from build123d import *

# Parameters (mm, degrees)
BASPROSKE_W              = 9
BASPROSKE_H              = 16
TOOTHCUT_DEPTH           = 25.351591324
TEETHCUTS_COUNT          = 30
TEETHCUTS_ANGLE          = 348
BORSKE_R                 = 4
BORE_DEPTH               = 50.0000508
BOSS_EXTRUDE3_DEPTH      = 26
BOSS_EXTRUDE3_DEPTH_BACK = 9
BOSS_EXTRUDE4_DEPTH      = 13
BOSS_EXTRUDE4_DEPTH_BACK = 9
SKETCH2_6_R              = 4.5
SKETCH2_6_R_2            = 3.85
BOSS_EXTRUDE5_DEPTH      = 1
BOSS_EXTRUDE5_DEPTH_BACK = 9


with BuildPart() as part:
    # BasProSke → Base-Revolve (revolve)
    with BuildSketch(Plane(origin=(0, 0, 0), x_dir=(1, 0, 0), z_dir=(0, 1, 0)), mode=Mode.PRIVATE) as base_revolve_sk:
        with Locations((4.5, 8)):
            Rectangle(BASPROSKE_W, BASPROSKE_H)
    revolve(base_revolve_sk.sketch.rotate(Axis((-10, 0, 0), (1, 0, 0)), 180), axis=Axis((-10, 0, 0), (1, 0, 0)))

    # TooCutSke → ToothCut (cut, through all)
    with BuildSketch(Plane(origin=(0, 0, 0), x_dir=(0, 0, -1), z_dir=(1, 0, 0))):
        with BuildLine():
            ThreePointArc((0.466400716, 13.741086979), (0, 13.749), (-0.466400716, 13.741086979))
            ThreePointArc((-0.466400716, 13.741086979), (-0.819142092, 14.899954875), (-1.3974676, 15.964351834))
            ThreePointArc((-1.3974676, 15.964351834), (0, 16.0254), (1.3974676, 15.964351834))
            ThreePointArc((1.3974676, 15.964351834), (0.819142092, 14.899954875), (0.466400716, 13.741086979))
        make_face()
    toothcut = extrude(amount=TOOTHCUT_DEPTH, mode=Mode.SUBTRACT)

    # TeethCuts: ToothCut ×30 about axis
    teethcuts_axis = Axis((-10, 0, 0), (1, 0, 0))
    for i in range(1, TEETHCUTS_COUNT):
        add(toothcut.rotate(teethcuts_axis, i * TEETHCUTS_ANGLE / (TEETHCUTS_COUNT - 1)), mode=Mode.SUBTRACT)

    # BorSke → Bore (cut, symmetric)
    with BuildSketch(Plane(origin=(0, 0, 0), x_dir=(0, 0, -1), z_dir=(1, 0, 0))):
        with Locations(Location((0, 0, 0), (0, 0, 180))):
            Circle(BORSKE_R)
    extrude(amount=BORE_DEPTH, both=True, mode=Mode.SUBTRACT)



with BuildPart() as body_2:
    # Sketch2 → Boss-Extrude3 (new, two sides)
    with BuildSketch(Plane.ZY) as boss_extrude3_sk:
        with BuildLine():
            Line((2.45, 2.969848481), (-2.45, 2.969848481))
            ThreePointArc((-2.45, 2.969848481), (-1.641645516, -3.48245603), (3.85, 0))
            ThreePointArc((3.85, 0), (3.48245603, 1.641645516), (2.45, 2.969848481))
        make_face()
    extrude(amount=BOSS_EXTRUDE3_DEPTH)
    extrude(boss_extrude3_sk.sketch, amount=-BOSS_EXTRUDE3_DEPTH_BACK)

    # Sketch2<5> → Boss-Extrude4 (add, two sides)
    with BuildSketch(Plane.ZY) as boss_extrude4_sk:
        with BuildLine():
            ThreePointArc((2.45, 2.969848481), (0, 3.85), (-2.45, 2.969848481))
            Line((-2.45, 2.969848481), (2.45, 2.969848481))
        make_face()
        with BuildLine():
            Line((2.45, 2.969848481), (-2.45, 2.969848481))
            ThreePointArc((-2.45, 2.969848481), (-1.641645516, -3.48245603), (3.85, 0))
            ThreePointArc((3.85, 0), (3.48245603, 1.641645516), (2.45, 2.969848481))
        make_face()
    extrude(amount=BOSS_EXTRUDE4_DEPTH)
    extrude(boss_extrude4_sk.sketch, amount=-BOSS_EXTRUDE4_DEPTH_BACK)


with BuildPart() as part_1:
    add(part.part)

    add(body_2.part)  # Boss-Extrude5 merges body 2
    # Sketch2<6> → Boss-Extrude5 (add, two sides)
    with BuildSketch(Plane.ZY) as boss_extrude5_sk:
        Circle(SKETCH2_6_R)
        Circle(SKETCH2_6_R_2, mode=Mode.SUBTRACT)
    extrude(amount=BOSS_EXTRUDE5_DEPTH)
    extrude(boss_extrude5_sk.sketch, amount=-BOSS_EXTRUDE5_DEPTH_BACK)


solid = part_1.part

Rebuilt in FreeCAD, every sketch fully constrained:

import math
import FreeCAD as App
import Part
import Sketcher
from FreeCAD import Vector

doc = App.newDocument("Part")
body = doc.addObject("PartDesign::Body", "Body")

sketch1 = body.newObject("Sketcher::SketchObject", "Sketch")
sketch1.AttachmentSupport = (doc.getObject("XZ_Plane"), [""])
sketch1.MapMode = "FlatFace"
sketch1.addGeometry([
    Part.LineSegment(Vector(0, -16, 0), Vector(0, 0, 0)),
    Part.LineSegment(Vector(0, 0, 0), Vector(9, 0, 0)),
    Part.LineSegment(Vector(9, 0, 0), Vector(9, -16, 0)),
    Part.LineSegment(Vector(9, -16, 0), Vector(0, -16, 0)),
], False)
sketch1.addConstraint([
    Sketcher.Constraint("Coincident", 0, 2, 1, 1),
    Sketcher.Constraint("Coincident", 1, 2, 2, 1),
    Sketcher.Constraint("Coincident", 2, 2, 3, 1),
    Sketcher.Constraint("Coincident", 3, 2, 0, 1),
    Sketcher.Constraint("Vertical", 0),
    Sketcher.Constraint("Horizontal", 1),
    Sketcher.Constraint("Vertical", 2),
    Sketcher.Constraint("Horizontal", 3),
    Sketcher.Constraint("Coincident", 0, 2, -1, 1),
    Sketcher.Constraint("DistanceX", 1, 1, 1, 2, 9.0),
    Sketcher.Constraint("DistanceY", 0, 1, 0, 2, 16.0),
])
revolution = body.newObject("PartDesign::Revolution", "Revolution")
revolution.Profile = sketch1
revolution.ReferenceAxis = (sketch1, ["H_Axis"])
revolution.Angle = 360

sketch2 = body.newObject("Sketcher::SketchObject", "Sketch001")
sketch2.AttachmentSupport = (doc.getObject("YZ_Plane"), [""])
sketch2.MapMode = "FlatFace"
sketch2.addGeometry([
    Part.ArcOfCircle(Part.Circle(Vector(0, 0, 0), Vector(0, 0, 1), 13.7), math.radians(-1.94), math.radians(1.94)),
    Part.ArcOfCircle(Part.Circle(Vector(12.6, -6.4, 0), Vector(0, 0, 1), 6), math.radians(56), math.radians(79)),
    Part.ArcOfCircle(Part.Circle(Vector(0, 0, 0), Vector(0, 0, 1), 16), math.radians(-5), math.radians(5)),
    Part.ArcOfCircle(Part.Circle(Vector(12.6, 6.4, 0), Vector(0, 0, 1), 6), math.radians(-79), math.radians(-56)),
], False)
sketch2.addConstraint([
    Sketcher.Constraint("Coincident", 0, 1, 1, 2),
    Sketcher.Constraint("Coincident", 1, 1, 2, 1),
    Sketcher.Constraint("Coincident", 2, 2, 3, 2),
    Sketcher.Constraint("Coincident", 3, 1, 0, 2),
    Sketcher.Constraint("Coincident", 0, 3, -1, 1),
    Sketcher.Constraint("Coincident", 2, 3, -1, 1),
    Sketcher.Constraint("Equal", 1, 3),
    Sketcher.Constraint("Symmetric", 1, 3, 3, 3, -1),
    Sketcher.Constraint("Radius", 1, 6.0),
    Sketcher.Constraint("Radius", 0, 13.749),
    Sketcher.Constraint("Radius", 2, 16.0254),
    Sketcher.Constraint("DistanceY", 0, 1, -1, 1, 0.466401),
    Sketcher.Constraint("DistanceX", -1, 1, 1, 1, 15.964352),
])
pocket1 = body.newObject("PartDesign::Pocket", "Pocket")
pocket1.Profile = sketch2
pocket1.Type = "ThroughAll"
pocket1.Reversed = True
doc.recompute()

polarpattern = body.newObject("PartDesign::PolarPattern", "PolarPattern")
polarpattern.Originals = [pocket1]
polarpattern.Axis = (doc.getObject("X_Axis"), [""])
polarpattern.Angle = 360
polarpattern.Occurrences = 30
body.Tip = polarpattern

sketch3 = body.newObject("Sketcher::SketchObject", "Sketch002")
sketch3.AttachmentSupport = (doc.getObject("YZ_Plane"), [""])
sketch3.MapMode = "FlatFace"
sketch3.addGeometry(Part.Circle(Vector(0, 0, 0), Vector(0, 0, 1), 4), False)
sketch3.addConstraint([
    Sketcher.Constraint("Coincident", 0, 3, -1, 1),
    Sketcher.Constraint("Diameter", 0, 8.0),
])
pocket2 = body.newObject("PartDesign::Pocket", "Pocket001")
pocket2.Profile = sketch3
pocket2.Length = 100.000102
pocket2.Midplane = True
body2 = doc.addObject("PartDesign::Body", "Body001")

sketch4 = body2.newObject("Sketcher::SketchObject", "Sketch003")
sketch4.AttachmentSupport = (doc.getObject("YZ_Plane001"), [""])
sketch4.MapMode = "FlatFace"
sketch4.addGeometry([
    Part.LineSegment(Vector(3, 2.5, 0), Vector(3, -2.5, 0)),
    Part.ArcOfCircle(Part.Circle(Vector(0, 0, 0), Vector(0, 0, 1), 3.9), math.radians(90), math.radians(320)),
    Part.ArcOfCircle(Part.Circle(Vector(0, 0, 0), Vector(0, 0, 1), 3.8), math.radians(40), math.radians(90)),
], False)
sketch4.addConstraint([
    Sketcher.Constraint("Coincident", 0, 2, 1, 2),
    Sketcher.Constraint("Tangent", 1, 1, 2, 2),
    Sketcher.Constraint("Coincident", 2, 1, 0, 1),
    Sketcher.Constraint("Vertical", 0),
    Sketcher.Constraint("Coincident", 1, 3, -1, 1),
    Sketcher.Constraint("Equal", 1, 2),
    Sketcher.Constraint("PointOnObject", 1, 1, -2),
    Sketcher.Constraint("Radius", 1, 3.85),
    Sketcher.Constraint("DistanceY", 0, 2, 0, 1, 4.9),
])
pad1 = body2.newObject("PartDesign::Pad", "Pad")
pad1.Profile = sketch4
pad1.Type = "TwoLengths"
pad1.Length = 26
pad1.Length2 = 9
pad1.Reversed = True

sketch5 = body2.newObject("Sketcher::SketchObject", "Sketch004")
sketch5.AttachmentSupport = (doc.getObject("YZ_Plane001"), [""])
sketch5.MapMode = "FlatFace"
sketch5.addGeometry([
    Part.ArcOfCircle(Part.Circle(Vector(0, 0, 0), Vector(0, 0, 1), 3.9), math.radians(-40), math.radians(40)),
    Part.ArcOfCircle(Part.Circle(Vector(0, 0, 0), Vector(0, 0, 1), 3.9), math.radians(90), math.radians(320)),
    Part.ArcOfCircle(Part.Circle(Vector(0, 0, 0), Vector(0, 0, 1), 3.8), math.radians(40), math.radians(90)),
], False)
sketch5.addConstraint([
    Sketcher.Constraint("Tangent", 0, 1, 1, 2),
    Sketcher.Constraint("Tangent", 1, 1, 2, 2),
    Sketcher.Constraint("Tangent", 2, 1, 0, 2),
    Sketcher.Constraint("Coincident", 0, 3, -1, 1),
    Sketcher.Constraint("PointOnObject", 1, 1, -2),
    Sketcher.Constraint("Vertical", 0, 1, 2, 1),
    Sketcher.Constraint("Radius", 0, 3.85),
    Sketcher.Constraint("DistanceY", 0, 1, 1, 1, 6.3),
])
pad2 = body2.newObject("PartDesign::Pad", "Pad001")
pad2.Profile = sketch5
pad2.Type = "TwoLengths"
pad2.Length = 13
pad2.Length2 = 9
pad2.Reversed = True
body.AllowCompound = True
doc.recompute()

boolean = body.newObject("PartDesign::Boolean", "Boolean")
boolean.Type = "Fuse"
boolean.addObjects([body2])

sketch6 = body.newObject("Sketcher::SketchObject", "Sketch005")
sketch6.AttachmentSupport = (doc.getObject("YZ_Plane"), [""])
sketch6.MapMode = "FlatFace"
sketch6.addGeometry([
    Part.Circle(Vector(0, 0, 0), Vector(0, 0, 1), 4.5),
    Part.Circle(Vector(0, 0, 0), Vector(0, 0, 1), 3.9),
], False)
sketch6.addConstraint([
    Sketcher.Constraint("Coincident", 0, 3, -1, 1),
    Sketcher.Constraint("Coincident", 1, 3, -1, 1),
    Sketcher.Constraint("Diameter", 0, 9.0),
    Sketcher.Constraint("Diameter", 1, 7.7),
])
pad3 = body.newObject("PartDesign::Pad", "Pad002")
pad3.Profile = sketch6
pad3.Type = "TwoLengths"
pad3.Length = 1
pad3.Length2 = 9
pad3.Reversed = True

doc.recompute()
